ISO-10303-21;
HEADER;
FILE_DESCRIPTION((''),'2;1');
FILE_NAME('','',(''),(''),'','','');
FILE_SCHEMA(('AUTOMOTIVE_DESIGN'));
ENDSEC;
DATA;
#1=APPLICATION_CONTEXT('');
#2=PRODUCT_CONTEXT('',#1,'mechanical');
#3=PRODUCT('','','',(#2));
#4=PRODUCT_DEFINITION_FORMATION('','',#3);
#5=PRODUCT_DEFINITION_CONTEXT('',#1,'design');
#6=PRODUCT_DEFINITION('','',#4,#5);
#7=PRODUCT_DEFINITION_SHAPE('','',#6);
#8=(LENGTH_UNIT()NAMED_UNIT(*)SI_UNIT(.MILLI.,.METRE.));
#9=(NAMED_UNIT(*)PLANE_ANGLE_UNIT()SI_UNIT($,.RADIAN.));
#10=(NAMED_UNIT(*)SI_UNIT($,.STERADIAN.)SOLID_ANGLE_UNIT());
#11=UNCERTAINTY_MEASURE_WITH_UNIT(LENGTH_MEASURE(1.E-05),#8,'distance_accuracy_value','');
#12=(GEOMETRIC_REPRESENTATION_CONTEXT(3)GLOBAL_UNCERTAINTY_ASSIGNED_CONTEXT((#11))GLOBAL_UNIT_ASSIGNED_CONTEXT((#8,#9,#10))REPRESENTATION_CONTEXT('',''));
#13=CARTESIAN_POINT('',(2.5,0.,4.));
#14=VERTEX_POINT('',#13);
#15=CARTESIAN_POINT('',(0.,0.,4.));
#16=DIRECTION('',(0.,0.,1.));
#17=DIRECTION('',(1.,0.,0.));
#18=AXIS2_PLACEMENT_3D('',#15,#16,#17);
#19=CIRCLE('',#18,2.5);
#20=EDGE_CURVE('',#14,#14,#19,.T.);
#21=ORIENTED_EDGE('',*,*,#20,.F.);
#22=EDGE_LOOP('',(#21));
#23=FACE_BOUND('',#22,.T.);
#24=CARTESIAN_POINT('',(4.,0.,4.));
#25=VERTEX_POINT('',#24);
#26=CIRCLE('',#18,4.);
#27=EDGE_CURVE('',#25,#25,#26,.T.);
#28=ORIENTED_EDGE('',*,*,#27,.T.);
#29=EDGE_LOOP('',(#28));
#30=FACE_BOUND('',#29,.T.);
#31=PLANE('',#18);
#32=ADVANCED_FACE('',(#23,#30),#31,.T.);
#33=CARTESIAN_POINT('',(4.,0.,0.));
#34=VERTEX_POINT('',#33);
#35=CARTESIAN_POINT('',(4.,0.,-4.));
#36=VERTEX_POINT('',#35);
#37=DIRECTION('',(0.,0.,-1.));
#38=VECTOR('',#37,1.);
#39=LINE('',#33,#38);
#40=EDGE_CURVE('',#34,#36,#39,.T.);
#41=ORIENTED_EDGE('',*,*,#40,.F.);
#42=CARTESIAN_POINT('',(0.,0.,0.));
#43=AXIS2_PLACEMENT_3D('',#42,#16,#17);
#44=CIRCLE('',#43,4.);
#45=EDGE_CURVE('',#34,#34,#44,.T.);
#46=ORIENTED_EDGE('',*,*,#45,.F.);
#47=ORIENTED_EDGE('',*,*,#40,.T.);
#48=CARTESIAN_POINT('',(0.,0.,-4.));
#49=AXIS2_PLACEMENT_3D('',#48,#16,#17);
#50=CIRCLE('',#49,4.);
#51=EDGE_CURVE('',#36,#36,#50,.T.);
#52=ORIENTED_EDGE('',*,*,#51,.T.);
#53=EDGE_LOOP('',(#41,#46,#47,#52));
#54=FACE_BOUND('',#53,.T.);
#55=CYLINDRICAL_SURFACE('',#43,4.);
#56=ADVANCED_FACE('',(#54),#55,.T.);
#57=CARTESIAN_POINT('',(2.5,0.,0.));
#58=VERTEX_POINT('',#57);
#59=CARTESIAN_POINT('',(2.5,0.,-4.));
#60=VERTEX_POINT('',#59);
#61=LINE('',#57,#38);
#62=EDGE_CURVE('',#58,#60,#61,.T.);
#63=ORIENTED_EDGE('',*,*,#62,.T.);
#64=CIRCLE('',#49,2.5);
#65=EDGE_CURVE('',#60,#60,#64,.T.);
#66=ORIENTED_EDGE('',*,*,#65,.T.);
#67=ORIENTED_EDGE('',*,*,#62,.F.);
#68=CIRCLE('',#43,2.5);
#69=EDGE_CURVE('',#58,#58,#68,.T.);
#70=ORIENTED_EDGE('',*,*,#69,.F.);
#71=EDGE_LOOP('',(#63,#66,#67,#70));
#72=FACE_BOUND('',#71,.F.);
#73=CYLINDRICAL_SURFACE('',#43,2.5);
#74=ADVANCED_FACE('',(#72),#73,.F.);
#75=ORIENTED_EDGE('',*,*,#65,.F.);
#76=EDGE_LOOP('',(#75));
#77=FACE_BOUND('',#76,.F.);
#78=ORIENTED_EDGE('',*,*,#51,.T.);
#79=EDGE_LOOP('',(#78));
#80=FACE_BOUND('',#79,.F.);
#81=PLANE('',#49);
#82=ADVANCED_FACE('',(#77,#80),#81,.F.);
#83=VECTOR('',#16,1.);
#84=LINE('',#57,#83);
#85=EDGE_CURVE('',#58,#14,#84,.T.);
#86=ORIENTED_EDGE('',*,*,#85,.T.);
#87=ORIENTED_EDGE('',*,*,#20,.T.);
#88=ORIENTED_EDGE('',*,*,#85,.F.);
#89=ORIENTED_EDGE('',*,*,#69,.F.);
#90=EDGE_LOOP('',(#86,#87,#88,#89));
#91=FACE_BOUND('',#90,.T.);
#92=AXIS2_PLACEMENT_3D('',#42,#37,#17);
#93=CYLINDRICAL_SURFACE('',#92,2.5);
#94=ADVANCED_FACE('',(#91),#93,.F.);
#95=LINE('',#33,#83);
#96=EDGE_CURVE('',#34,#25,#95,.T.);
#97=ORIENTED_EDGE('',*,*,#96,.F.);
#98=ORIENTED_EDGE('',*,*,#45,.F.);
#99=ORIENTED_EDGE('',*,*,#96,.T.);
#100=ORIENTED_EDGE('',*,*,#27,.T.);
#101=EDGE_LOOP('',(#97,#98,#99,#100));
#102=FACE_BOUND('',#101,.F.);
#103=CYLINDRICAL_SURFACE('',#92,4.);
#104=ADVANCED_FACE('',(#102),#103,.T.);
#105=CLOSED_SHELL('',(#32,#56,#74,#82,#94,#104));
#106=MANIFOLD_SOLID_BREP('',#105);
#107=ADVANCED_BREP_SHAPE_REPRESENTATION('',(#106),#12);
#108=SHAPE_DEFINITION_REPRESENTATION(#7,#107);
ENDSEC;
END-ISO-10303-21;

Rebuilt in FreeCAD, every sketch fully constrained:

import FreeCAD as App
import Part
import Sketcher
from FreeCAD import Vector

doc = App.newDocument("Part")
params = doc.addObject("Spreadsheet::Sheet", "Params")
for row, (alias, value) in enumerate([
    ("sketch1_diameter", "8 mm"),
    ("sketch1_diameter2", "5 mm"),
    ("pad1_length", "8 mm"),
], start=1):
    params.set(f"A{row}", alias)
    params.set(f"B{row}", "=" + value)
    params.setAlias(f"B{row}", alias)

body = doc.addObject("PartDesign::Body", "Body")

sketch1 = body.newObject("Sketcher::SketchObject", "Sketch")
sketch1.AttachmentSupport = (doc.getObject("XY_Plane"), [""])
sketch1.MapMode = "FlatFace"
sketch1.addGeometry(Part.Circle(Vector(0, 0, 0), Vector(0, 0, 1), 4), False)
sketch1.addGeometry(Part.Circle(Vector(0, 0, 0), Vector(0, 0, 1), 2.5), False)
sketch1.addConstraint(Sketcher.Constraint("Coincident", 0, 3, -1, 1))
sketch1.addConstraint(Sketcher.Constraint("Coincident", 1, 3, -1, 1))
sketch1.addConstraint(Sketcher.Constraint("Diameter", 0, 8.0))
sketch1.addConstraint(Sketcher.Constraint("Diameter", 1, 5.0))
sketch1.setExpression("Constraints[2]", "Params.sketch1_diameter")
sketch1.setExpression("Constraints[3]", "Params.sketch1_diameter2")
pad1 = body.newObject("PartDesign::Pad", "Pad")
pad1.Profile = sketch1
pad1.setExpression("Length", "Params.pad1_length")
pad1.Midplane = True

doc.recompute()
